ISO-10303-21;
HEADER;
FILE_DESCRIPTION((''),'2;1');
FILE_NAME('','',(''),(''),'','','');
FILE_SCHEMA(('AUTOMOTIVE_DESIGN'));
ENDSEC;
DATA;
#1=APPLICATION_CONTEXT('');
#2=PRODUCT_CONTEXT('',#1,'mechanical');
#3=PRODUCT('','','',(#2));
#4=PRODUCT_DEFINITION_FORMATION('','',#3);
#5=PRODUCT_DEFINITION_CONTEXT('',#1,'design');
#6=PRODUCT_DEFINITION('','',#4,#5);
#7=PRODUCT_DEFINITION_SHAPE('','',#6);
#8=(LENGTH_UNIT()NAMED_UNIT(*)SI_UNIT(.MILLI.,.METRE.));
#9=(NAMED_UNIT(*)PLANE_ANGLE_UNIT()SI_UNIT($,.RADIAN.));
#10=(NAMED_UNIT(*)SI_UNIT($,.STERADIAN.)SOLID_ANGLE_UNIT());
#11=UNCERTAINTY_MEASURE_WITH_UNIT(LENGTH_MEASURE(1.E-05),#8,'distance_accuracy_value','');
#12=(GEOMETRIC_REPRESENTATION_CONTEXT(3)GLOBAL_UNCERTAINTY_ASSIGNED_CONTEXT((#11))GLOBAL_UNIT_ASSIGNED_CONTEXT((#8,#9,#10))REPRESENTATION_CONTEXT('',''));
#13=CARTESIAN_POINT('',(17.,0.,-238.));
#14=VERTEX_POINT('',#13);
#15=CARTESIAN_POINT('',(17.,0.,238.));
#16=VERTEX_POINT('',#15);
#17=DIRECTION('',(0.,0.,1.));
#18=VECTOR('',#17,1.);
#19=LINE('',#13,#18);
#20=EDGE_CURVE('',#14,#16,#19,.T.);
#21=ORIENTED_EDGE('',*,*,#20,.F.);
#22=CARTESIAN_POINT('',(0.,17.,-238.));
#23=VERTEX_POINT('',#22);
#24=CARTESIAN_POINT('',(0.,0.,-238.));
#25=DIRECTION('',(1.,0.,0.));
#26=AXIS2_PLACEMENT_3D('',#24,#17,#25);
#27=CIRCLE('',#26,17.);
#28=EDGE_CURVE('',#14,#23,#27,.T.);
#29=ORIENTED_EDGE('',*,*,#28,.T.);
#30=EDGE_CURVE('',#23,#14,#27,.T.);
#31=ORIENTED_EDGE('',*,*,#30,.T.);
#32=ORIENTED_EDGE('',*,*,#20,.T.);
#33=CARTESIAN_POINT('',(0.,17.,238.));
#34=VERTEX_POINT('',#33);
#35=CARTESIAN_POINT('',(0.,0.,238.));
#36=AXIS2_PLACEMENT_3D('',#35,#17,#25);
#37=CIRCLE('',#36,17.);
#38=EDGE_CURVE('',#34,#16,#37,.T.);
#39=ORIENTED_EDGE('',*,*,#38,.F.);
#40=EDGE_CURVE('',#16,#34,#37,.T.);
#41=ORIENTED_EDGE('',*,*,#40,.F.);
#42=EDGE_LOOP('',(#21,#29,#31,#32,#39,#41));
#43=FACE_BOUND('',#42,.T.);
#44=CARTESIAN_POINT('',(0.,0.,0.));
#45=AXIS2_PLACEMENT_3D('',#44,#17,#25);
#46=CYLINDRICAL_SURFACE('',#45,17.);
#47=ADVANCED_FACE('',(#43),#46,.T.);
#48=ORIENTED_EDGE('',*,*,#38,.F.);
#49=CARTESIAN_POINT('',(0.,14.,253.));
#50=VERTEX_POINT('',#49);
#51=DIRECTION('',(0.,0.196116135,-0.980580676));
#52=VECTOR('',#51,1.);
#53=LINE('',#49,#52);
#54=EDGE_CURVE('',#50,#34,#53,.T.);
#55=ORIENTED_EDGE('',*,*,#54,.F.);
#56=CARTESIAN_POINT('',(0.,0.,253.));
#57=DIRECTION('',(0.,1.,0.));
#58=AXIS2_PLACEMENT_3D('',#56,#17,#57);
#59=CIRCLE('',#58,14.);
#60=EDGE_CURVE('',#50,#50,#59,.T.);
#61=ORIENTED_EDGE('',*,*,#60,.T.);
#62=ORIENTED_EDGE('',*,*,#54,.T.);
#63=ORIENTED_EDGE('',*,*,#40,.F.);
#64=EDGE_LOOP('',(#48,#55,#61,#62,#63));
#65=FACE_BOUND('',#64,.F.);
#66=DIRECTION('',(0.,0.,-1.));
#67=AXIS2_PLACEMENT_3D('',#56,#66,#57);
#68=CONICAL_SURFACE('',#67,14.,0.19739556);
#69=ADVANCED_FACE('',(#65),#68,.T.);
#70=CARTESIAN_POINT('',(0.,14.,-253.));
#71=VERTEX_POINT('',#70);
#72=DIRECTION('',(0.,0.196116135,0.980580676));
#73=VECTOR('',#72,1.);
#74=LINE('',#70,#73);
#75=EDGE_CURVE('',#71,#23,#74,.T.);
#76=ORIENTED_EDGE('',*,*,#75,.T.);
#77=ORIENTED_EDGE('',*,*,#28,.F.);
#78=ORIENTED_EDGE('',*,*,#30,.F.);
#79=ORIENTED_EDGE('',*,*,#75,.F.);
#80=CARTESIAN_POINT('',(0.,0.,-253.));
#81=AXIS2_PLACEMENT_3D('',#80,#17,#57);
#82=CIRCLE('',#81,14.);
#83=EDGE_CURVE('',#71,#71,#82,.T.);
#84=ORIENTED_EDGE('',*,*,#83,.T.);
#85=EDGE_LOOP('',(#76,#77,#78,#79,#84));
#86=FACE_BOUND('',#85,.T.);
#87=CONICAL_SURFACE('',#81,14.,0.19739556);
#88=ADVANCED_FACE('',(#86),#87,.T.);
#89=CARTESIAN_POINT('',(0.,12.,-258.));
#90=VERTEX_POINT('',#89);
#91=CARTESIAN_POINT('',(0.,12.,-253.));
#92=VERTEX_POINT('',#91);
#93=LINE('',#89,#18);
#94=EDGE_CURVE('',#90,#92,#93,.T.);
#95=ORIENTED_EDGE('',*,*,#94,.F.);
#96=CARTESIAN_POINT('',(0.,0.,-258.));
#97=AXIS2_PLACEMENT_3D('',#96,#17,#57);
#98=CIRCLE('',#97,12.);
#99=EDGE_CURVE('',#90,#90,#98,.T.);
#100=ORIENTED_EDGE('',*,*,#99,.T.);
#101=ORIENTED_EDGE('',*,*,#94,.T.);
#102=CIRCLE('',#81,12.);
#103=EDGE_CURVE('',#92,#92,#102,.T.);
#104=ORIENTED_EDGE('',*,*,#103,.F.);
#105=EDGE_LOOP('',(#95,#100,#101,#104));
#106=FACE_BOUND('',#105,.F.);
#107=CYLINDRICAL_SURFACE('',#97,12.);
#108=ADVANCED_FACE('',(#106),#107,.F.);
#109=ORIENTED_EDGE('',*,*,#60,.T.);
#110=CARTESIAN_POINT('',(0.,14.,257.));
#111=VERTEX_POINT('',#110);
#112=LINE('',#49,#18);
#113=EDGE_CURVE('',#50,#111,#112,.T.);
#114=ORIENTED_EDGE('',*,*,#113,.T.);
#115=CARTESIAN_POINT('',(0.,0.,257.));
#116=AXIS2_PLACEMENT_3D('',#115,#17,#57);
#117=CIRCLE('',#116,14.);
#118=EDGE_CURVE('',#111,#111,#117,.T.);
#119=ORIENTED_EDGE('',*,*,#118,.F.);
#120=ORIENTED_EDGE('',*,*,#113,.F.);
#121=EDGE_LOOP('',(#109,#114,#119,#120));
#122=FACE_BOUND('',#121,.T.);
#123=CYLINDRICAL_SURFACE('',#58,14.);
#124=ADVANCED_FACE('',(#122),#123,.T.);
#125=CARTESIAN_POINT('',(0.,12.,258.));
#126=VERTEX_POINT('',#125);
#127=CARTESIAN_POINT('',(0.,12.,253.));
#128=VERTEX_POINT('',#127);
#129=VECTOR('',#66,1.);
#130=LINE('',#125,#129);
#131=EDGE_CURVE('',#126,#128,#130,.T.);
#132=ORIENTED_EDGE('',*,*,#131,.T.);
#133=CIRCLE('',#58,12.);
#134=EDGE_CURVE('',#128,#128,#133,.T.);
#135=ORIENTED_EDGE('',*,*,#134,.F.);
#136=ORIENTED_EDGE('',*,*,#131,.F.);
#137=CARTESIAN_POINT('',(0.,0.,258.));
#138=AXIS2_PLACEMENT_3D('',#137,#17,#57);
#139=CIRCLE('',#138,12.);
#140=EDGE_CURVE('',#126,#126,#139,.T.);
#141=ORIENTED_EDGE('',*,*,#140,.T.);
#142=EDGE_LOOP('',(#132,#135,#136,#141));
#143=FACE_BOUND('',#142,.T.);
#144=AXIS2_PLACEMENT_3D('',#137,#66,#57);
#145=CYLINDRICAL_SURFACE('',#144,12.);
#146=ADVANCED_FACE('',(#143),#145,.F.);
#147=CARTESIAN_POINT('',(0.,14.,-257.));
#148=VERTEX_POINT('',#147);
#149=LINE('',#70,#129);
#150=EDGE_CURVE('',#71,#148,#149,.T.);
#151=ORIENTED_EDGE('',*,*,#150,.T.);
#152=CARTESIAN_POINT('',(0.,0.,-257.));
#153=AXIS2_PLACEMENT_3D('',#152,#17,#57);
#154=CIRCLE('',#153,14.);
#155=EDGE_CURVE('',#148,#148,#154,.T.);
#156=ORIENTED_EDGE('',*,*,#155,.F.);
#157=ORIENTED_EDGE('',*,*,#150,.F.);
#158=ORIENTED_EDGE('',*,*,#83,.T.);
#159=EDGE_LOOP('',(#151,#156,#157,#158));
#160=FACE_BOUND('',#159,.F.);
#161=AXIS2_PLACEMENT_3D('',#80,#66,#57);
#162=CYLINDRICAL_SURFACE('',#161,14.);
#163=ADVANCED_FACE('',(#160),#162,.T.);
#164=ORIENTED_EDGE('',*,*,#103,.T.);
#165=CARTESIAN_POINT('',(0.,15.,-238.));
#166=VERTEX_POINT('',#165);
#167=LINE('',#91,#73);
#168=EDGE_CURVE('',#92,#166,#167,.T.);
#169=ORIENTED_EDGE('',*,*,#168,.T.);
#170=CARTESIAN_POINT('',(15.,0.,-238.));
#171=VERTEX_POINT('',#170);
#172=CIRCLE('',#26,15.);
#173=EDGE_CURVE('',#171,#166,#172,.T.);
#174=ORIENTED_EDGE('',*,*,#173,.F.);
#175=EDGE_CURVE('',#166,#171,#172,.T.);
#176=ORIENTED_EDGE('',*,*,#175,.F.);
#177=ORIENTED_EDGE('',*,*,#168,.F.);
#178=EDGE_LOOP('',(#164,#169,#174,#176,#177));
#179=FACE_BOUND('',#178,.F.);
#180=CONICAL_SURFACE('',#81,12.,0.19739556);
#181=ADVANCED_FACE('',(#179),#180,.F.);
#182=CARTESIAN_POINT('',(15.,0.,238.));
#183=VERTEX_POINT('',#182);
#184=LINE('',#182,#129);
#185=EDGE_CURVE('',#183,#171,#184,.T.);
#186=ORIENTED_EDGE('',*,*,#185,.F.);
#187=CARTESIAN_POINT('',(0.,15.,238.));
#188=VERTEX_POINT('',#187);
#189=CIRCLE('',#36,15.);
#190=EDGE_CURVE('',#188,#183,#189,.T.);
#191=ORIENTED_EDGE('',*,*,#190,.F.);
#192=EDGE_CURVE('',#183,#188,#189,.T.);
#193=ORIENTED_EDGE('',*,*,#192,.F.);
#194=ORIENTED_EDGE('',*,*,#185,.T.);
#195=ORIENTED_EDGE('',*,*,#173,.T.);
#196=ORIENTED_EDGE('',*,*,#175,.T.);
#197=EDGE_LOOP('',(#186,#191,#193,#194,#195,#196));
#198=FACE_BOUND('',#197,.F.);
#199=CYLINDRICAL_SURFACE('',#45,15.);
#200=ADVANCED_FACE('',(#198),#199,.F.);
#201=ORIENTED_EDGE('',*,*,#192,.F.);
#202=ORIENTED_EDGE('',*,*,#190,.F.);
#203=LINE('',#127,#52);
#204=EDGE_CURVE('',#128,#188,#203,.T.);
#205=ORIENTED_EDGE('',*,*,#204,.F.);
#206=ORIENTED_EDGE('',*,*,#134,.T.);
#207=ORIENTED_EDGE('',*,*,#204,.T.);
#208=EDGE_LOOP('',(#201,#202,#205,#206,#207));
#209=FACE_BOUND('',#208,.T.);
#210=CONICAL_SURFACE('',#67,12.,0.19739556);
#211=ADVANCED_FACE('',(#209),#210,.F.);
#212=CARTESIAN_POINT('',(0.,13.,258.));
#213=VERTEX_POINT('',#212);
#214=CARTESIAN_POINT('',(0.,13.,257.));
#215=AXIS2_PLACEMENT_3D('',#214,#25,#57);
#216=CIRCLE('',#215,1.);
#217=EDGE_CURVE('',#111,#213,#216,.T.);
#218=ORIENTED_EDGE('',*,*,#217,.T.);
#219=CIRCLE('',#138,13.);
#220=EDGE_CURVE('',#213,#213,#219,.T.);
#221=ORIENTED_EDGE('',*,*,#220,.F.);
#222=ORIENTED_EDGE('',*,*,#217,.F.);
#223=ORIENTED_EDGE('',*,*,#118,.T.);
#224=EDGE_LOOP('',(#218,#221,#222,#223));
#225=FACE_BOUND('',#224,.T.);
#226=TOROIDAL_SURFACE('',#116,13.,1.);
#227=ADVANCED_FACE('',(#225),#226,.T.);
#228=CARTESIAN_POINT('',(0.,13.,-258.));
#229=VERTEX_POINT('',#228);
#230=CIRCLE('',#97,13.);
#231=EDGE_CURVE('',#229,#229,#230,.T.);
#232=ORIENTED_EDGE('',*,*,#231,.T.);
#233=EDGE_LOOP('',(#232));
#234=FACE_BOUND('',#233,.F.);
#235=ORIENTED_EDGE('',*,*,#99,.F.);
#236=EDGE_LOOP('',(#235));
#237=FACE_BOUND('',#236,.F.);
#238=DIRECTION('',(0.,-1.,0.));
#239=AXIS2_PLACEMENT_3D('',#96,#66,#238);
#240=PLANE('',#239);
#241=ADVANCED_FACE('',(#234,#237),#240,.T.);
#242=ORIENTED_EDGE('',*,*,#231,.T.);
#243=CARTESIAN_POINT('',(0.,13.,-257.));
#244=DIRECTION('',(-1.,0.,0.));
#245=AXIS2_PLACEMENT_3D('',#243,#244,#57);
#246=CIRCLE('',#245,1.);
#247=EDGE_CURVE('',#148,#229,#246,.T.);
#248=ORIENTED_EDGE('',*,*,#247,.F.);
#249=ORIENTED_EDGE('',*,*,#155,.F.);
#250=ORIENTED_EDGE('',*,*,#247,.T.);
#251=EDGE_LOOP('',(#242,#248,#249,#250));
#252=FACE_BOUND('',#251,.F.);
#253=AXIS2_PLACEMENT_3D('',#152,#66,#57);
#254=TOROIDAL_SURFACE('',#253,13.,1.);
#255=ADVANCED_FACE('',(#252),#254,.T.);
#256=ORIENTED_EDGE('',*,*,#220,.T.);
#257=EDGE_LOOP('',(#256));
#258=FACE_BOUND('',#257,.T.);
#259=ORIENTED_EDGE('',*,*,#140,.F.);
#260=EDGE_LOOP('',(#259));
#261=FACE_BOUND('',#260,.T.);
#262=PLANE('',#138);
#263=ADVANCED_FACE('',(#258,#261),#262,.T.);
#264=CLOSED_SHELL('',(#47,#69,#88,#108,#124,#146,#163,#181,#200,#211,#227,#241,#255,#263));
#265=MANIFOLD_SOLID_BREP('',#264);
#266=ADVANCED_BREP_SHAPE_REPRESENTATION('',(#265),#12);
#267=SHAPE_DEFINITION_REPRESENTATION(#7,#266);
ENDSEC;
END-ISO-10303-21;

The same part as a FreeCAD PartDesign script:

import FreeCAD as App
import Part
import Sketcher
from FreeCAD import Vector


def edges_at(feature, points):
    """Names of the edges that pass closest to the given points."""
    edges = feature.Shape.Edges
    near = lambda p: min(range(len(edges)), key=lambda i: edges[i].distToShape(Part.Vertex(*p))[0])
    return sorted({f"Edge{near(p) + 1}" for p in points})

doc = App.newDocument("Part")
body = doc.addObject("PartDesign::Body", "Body")

sketch1 = body.newObject("Sketcher::SketchObject", "Sketch")
sketch1.AttachmentSupport = (doc.getObject("XY_Plane"), [""])
sketch1.MapMode = "FlatFace"
sketch1.addGeometry([
    Part.Circle(Vector(0, 0, 0), Vector(0, 0, 1), 17),
    Part.Circle(Vector(0, 0, 0), Vector(0, 0, 1), 15),
], False)
sketch1.addConstraint([
    Sketcher.Constraint("Coincident", 0, 3, -1, 1),
    Sketcher.Constraint("Coincident", 1, 3, -1, 1),
    Sketcher.Constraint("Diameter", 1, 30.0),
    Sketcher.Constraint("Diameter", 0, 34.0),
])
pad1 = body.newObject("PartDesign::Pad", "Pad")
pad1.Profile = sketch1
pad1.Length = 476
pad1.Midplane = True

sketch2 = body.newObject("Sketcher::SketchObject", "Sketch001")
sketch2.AttachmentSupport = (doc.getObject("YZ_Plane"), [""])
sketch2.MapMode = "FlatFace"
sketch2.addGeometry([
    Part.LineSegment(Vector(17, 238, 0), Vector(14, 253, 0)),
    Part.LineSegment(Vector(14, 253, 0), Vector(14, 258, 0)),
    Part.LineSegment(Vector(14, 258, 0), Vector(12, 258, 0)),
    Part.LineSegment(Vector(12, 258, 0), Vector(12, 253, 0)),
    Part.LineSegment(Vector(12, 253, 0), Vector(15, 238, 0)),
    Part.LineSegment(Vector(15, 238, 0), Vector(17, 238, 0)),
], False)
sketch2.addConstraint([
    Sketcher.Constraint("Coincident", 0, 2, 1, 1),
    Sketcher.Constraint("Coincident", 1, 2, 2, 1),
    Sketcher.Constraint("Coincident", 2, 2, 3, 1),
    Sketcher.Constraint("Coincident", 3, 2, 4, 1),
    Sketcher.Constraint("Coincident", 4, 2, 5, 1),
    Sketcher.Constraint("Coincident", 5, 2, 0, 1),
    Sketcher.Constraint("Vertical", 1),
    Sketcher.Constraint("Horizontal", 2),
    Sketcher.Constraint("Vertical", 3),
    Sketcher.Constraint("Horizontal", 5),
    Sketcher.Constraint("Parallel", 0, 4),
    Sketcher.Constraint("Horizontal", 0, 2, 3, 2),
    Sketcher.Constraint("DistanceX", 2, 2, 2, 1, 2.0),
    Sketcher.Constraint("DistanceY", 1, 1, 1, 2, 5.0),
    Sketcher.Constraint("DistanceX", -1, 1, 2, 2, 12.0),
    Sketcher.Constraint("DistanceY", 4, 2, 1, 2, 20.0),
    Sketcher.Constraint("DistanceX", 3, 2, 5, 2, 5.0),
    Sketcher.Constraint("DistanceY", -1, 1, 0, 2, 253.0),
])
revolution = body.newObject("PartDesign::Revolution", "Revolution")
revolution.Profile = sketch2
revolution.ReferenceAxis = (sketch2, ["V_Axis"])
revolution.Angle = 360
doc.recompute()

fillet = body.newObject("PartDesign::Fillet", "Fillet")
fillet.Base = (revolution, edges_at(revolution, [(0, -14, 258)]))
fillet.Radius = 1
doc.recompute()

mirrored = body.newObject("PartDesign::Mirrored", "Mirrored")
mirrored.Originals = [revolution, fillet]
mirrored.MirrorPlane = (doc.getObject("XY_Plane"), [""])
body.Tip = mirrored

doc.recompute()
